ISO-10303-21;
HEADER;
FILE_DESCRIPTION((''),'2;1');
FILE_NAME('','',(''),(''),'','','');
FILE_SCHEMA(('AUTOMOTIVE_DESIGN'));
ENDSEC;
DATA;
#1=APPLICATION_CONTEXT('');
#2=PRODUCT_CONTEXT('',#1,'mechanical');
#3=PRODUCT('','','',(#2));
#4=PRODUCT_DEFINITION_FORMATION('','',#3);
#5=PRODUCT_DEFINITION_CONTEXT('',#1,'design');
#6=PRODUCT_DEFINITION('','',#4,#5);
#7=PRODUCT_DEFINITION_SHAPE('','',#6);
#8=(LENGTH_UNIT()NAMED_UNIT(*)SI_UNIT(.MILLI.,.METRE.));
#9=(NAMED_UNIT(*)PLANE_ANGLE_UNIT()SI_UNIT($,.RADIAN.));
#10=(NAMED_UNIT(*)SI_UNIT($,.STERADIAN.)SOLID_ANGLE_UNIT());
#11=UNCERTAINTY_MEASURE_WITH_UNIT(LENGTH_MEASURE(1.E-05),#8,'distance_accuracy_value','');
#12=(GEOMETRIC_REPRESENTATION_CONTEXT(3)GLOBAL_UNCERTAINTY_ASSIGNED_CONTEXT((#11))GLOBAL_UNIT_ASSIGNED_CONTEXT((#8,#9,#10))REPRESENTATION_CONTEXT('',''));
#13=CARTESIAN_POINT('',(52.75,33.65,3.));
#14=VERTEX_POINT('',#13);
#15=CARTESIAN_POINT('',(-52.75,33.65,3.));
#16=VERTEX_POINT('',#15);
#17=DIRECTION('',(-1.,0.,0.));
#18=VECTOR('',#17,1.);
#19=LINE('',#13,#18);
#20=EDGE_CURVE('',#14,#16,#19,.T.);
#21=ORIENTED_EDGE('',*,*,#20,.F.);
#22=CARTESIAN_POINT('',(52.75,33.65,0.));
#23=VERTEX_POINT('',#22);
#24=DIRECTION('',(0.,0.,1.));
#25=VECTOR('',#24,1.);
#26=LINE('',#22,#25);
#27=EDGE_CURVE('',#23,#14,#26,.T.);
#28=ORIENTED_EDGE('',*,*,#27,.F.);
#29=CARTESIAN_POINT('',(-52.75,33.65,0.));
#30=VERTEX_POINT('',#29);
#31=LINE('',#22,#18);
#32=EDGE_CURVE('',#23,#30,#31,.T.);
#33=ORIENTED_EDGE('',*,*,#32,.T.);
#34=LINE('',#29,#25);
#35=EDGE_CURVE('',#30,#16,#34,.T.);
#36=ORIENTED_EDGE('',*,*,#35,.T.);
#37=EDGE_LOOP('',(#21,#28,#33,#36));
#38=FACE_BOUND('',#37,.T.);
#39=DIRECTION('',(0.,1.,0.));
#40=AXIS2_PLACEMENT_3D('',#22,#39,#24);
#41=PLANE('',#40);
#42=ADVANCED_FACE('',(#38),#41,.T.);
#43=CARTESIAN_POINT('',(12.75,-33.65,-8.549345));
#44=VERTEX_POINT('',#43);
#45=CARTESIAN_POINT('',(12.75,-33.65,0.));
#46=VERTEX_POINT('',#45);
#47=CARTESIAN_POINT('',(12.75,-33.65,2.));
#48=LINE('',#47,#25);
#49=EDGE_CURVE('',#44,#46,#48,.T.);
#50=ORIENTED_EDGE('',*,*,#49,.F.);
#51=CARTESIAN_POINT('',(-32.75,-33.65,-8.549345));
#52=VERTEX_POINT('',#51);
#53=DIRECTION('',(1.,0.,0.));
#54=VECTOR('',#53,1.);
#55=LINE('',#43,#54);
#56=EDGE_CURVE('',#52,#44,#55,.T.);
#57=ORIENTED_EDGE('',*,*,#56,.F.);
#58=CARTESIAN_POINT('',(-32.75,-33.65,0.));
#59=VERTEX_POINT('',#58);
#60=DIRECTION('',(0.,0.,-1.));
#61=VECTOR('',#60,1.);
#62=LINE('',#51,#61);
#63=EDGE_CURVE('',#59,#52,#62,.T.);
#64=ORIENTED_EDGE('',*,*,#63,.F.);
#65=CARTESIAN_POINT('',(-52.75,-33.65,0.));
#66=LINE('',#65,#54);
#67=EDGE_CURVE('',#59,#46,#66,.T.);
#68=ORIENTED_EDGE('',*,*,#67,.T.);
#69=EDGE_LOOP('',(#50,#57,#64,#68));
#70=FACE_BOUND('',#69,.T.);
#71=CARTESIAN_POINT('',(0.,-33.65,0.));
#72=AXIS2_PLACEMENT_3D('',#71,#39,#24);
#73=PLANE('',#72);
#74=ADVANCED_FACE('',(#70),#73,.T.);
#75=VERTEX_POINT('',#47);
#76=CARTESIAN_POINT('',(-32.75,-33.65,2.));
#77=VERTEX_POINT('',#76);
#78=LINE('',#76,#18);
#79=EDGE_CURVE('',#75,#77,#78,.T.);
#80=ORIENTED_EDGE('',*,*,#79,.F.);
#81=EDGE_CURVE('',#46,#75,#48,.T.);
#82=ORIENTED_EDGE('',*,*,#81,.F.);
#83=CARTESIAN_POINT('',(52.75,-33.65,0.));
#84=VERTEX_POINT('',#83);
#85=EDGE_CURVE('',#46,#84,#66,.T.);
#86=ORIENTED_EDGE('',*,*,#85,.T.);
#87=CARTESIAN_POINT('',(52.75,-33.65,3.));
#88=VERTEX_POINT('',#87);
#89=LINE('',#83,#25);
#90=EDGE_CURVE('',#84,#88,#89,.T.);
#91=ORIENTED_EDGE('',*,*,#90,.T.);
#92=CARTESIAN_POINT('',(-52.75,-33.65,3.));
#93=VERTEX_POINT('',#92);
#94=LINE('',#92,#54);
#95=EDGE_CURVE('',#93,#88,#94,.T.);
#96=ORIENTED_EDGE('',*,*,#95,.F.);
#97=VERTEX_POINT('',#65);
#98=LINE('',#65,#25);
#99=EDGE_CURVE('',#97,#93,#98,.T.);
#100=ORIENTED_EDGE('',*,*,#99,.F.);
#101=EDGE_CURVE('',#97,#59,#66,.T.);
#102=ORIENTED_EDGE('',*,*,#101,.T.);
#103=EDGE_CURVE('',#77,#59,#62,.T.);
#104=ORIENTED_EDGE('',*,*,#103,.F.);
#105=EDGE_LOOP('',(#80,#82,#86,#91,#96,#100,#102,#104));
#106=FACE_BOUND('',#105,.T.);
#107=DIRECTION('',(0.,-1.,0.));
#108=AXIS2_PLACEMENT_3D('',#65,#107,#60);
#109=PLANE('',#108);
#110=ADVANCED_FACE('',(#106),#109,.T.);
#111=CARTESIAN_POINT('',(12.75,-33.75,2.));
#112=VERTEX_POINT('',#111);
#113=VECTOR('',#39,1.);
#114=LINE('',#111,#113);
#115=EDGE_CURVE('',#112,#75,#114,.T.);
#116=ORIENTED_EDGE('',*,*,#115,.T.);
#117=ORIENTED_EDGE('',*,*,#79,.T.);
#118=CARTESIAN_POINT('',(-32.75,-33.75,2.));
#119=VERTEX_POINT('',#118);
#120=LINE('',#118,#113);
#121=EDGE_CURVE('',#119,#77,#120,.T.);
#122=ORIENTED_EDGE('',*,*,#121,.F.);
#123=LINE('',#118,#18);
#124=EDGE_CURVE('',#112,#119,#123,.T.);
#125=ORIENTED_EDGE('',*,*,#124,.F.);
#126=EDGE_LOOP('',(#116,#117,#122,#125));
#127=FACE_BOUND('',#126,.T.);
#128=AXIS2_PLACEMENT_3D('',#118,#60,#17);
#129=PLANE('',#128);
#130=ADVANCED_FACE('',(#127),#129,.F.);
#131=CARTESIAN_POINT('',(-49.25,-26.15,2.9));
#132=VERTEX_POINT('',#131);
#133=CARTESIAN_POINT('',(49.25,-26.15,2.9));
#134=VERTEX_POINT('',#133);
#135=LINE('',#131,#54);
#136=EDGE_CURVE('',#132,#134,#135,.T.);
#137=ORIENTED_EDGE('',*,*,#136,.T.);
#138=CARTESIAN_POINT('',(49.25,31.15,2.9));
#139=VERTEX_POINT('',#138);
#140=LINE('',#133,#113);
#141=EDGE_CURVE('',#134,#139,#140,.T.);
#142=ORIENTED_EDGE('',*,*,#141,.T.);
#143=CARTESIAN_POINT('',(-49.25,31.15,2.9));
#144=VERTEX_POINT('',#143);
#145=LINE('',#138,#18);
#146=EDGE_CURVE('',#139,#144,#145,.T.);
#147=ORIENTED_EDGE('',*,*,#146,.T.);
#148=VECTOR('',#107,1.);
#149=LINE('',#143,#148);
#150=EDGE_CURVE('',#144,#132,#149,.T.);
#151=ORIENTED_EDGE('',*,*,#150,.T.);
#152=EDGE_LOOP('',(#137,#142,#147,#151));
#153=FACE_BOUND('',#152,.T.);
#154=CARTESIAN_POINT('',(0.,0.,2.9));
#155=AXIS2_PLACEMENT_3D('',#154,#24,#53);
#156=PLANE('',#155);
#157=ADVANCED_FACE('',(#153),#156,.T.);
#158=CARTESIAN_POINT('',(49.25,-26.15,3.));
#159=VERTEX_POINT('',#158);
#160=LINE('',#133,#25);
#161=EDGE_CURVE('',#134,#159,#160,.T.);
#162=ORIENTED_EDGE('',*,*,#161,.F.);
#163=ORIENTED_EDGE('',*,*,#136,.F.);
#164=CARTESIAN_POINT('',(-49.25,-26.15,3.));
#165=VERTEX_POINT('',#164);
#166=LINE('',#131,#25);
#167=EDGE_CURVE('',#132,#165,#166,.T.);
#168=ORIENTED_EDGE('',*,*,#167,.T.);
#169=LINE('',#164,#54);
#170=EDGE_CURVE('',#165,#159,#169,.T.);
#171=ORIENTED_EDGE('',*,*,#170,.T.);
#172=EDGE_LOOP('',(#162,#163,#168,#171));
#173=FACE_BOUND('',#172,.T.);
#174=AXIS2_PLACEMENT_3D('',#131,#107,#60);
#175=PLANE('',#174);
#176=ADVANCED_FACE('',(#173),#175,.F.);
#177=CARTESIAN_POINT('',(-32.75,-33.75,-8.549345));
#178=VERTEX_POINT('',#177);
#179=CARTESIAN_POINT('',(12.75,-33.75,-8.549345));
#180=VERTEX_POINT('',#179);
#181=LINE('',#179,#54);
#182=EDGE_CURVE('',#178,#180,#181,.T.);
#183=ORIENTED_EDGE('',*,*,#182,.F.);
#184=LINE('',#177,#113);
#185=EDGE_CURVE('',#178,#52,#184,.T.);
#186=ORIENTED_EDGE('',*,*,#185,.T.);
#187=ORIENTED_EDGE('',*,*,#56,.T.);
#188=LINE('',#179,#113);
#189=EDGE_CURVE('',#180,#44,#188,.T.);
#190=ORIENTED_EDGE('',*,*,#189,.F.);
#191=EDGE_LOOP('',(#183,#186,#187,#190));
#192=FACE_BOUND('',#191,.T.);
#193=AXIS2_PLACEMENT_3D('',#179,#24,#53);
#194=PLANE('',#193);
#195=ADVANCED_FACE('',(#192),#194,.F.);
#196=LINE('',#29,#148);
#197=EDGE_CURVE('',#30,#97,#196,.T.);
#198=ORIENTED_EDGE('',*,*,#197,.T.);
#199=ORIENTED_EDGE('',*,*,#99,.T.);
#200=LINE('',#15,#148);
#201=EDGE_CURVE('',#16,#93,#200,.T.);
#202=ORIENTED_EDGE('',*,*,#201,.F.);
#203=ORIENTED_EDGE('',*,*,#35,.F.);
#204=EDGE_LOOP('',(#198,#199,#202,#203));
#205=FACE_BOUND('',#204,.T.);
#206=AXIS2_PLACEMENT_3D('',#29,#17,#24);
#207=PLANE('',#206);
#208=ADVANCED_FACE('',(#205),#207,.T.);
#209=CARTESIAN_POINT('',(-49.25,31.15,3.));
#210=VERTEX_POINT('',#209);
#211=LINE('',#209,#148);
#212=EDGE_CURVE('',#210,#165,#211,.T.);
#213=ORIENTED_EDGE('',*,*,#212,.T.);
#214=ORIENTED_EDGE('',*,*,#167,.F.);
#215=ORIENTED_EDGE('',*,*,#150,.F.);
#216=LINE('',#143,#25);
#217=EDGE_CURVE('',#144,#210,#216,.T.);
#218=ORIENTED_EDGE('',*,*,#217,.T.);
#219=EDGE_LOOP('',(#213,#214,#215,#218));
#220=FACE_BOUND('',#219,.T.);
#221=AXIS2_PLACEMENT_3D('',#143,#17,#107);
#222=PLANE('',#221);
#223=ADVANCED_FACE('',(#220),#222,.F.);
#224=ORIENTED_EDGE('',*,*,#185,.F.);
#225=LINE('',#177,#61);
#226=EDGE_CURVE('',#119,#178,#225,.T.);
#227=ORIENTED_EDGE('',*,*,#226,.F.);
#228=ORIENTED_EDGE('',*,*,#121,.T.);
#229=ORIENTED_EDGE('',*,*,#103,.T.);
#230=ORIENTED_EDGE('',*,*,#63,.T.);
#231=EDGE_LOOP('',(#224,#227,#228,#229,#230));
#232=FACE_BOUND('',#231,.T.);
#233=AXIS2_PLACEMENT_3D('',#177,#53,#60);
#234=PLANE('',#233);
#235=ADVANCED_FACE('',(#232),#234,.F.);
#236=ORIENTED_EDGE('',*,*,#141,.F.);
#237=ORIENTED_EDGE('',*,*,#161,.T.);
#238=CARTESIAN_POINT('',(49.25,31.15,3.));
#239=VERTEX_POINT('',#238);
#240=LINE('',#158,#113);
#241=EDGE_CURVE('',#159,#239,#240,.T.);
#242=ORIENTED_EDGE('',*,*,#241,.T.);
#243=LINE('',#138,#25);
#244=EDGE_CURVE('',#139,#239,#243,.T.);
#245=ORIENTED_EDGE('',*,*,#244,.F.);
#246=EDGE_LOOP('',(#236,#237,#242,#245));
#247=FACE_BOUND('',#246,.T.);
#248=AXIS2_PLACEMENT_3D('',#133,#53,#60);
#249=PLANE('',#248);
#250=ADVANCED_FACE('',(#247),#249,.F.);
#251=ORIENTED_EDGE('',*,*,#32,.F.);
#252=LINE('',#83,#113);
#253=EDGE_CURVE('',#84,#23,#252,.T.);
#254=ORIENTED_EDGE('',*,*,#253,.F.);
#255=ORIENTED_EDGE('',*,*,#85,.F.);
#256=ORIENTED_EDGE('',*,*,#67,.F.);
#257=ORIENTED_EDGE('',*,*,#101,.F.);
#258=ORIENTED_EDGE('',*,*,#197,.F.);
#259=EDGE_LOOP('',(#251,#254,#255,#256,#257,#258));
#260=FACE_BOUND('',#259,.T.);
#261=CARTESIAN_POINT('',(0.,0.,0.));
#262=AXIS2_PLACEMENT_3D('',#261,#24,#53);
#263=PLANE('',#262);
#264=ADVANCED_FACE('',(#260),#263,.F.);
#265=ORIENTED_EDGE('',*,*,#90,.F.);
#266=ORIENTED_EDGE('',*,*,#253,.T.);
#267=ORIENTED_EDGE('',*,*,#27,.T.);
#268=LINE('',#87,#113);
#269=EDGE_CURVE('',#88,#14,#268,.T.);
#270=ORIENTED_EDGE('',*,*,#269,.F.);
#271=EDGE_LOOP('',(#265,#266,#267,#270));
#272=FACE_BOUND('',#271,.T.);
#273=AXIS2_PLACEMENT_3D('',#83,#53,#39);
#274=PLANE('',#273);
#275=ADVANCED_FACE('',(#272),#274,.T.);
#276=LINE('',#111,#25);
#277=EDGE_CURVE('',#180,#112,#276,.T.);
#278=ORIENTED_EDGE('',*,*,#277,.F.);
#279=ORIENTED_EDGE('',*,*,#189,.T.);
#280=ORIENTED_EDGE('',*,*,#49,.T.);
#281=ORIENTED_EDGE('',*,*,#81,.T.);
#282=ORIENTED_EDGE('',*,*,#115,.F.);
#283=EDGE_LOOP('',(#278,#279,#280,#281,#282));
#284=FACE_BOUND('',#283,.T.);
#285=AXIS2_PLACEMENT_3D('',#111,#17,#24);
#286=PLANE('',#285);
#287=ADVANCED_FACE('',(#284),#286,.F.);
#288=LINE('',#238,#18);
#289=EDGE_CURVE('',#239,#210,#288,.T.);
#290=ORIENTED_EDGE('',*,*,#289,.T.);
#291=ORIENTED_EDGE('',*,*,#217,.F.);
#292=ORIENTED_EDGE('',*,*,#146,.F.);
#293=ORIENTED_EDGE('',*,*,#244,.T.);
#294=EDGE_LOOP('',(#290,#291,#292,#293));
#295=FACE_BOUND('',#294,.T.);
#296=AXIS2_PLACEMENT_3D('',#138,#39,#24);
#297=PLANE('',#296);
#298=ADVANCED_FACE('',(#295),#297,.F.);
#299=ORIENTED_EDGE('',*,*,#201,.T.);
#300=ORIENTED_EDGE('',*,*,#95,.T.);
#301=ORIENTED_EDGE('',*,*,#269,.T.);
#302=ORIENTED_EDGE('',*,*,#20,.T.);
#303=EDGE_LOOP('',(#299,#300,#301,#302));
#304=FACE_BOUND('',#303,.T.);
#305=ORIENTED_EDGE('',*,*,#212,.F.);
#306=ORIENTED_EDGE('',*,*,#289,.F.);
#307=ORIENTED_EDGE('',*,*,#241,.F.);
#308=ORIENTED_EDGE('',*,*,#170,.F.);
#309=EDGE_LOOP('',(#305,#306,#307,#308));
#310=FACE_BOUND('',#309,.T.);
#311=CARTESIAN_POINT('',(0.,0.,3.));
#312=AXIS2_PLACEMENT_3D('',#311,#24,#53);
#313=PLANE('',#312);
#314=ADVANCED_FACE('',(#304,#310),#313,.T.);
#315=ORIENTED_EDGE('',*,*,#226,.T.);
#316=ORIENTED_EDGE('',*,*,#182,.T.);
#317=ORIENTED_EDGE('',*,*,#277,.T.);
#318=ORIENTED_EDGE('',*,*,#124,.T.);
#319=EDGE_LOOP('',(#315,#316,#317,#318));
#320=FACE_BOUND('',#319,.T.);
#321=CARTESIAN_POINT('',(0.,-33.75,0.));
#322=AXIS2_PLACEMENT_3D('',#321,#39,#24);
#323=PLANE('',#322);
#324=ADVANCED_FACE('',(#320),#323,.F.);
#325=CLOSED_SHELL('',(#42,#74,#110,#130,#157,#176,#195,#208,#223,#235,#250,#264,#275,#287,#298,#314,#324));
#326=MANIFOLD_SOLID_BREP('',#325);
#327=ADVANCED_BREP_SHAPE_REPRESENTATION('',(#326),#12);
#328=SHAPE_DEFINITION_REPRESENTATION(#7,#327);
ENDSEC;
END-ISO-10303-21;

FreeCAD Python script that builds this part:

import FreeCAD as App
import Part
import Sketcher
from FreeCAD import Vector
Q = App.Units.Quantity

doc = App.newDocument("Part")
body = doc.addObject("PartDesign::Body", "Body")

# Sketch on XY plane
sketch1 = body.newObject("Sketcher::SketchObject", "Sketch")
sketch1.AttachmentSupport = (doc.getObject("XY_Plane"), [""])
sketch1.MapMode = "FlatFace"
sketch1.AttachmentOffset = App.Placement(Vector(0, 0, 3), App.Rotation())
sketch1.addGeometry(Part.LineSegment(Vector(-53, 34, 0), Vector(-53, -34, 0)), False)
sketch1.addGeometry(Part.LineSegment(Vector(-53, -34, 0), Vector(53, -34, 0)), False)
sketch1.addGeometry(Part.LineSegment(Vector(53, -34, 0), Vector(53, 34, 0)), False)
sketch1.addGeometry(Part.LineSegment(Vector(53, 34, 0), Vector(-53, 34, 0)), False)
sketch1.addConstraint(Sketcher.Constraint("Coincident", 0, 2, 1, 1))
sketch1.addConstraint(Sketcher.Constraint("Coincident", 1, 2, 2, 1))
sketch1.addConstraint(Sketcher.Constraint("Coincident", 2, 2, 3, 1))
sketch1.addConstraint(Sketcher.Constraint("Coincident", 3, 2, 0, 1))
sketch1.addConstraint(Sketcher.Constraint("Vertical", 0))
sketch1.addConstraint(Sketcher.Constraint("Horizontal", 1))
sketch1.addConstraint(Sketcher.Constraint("Vertical", 2))
sketch1.addConstraint(Sketcher.Constraint("Horizontal", 3))
sketch1.addConstraint(Sketcher.Constraint("Symmetric", 0, 2, 2, 2, -1, 1))
sketch1.addConstraint(Sketcher.Constraint("DistanceX", 1, 1, 1, 2, Q("105.5 mm")))
sketch1.addConstraint(Sketcher.Constraint("DistanceY", 0, 2, 0, 1, Q("67.3 mm")))
pad1 = body.newObject("PartDesign::Pad", "Pad")
pad1.Profile = sketch1
pad1.Length = 3
pad1.Reversed = True

# Sketch on XZ plane
sketch2 = body.newObject("Sketcher::SketchObject", "Sketch001")
sketch2.AttachmentSupport = (doc.getObject("XZ_Plane"), [""])
sketch2.MapMode = "FlatFace"
sketch2.AttachmentOffset = App.Placement(Vector(0, 0, 33.65), App.Rotation())
sketch2.addGeometry(Part.LineSegment(Vector(-33, 2, 0), Vector(-33, -9, 0)), False)
sketch2.addGeometry(Part.LineSegment(Vector(-33, -9, 0), Vector(13, -9, 0)), False)
sketch2.addGeometry(Part.LineSegment(Vector(13, -9, 0), Vector(13, 2, 0)), False)
sketch2.addGeometry(Part.LineSegment(Vector(13, 2, 0), Vector(-33, 2, 0)), False)
sketch2.addConstraint(Sketcher.Constraint("Coincident", 0, 2, 1, 1))
sketch2.addConstraint(Sketcher.Constraint("Coincident", 1, 2, 2, 1))
sketch2.addConstraint(Sketcher.Constraint("Coincident", 2, 2, 3, 1))
sketch2.addConstraint(Sketcher.Constraint("Coincident", 3, 2, 0, 1))
sketch2.addConstraint(Sketcher.Constraint("Vertical", 0))
sketch2.addConstraint(Sketcher.Constraint("Horizontal", 1))
sketch2.addConstraint(Sketcher.Constraint("Vertical", 2))
sketch2.addConstraint(Sketcher.Constraint("Horizontal", 3))
sketch2.addConstraint(Sketcher.Constraint("DistanceX", 1, 1, 1, 2, Q("45.5 mm")))
sketch2.addConstraint(Sketcher.Constraint("DistanceY", -1, 1, 2, 2, Q("2 mm")))
sketch2.addConstraint(Sketcher.Constraint("DistanceX", 0, 2, -1, 1, Q("32.75 mm")))
sketch2.addConstraint(Sketcher.Constraint("DistanceY", 0, 2, 0, 1, Q("10.549345 mm")))
pad2 = body.newObject("PartDesign::Pad", "Pad001")
pad2.Profile = sketch2
pad2.Length = 0.1

# Sketch on XY plane
sketch3 = body.newObject("Sketcher::SketchObject", "Sketch002")
sketch3.AttachmentSupport = (doc.getObject("XY_Plane"), [""])
sketch3.MapMode = "FlatFace"
sketch3.AttachmentOffset = App.Placement(Vector(0, 0, 3), App.Rotation())
sketch3.addGeometry(Part.LineSegment(Vector(-49, 31, 0), Vector(-49, -26, 0)), False)
sketch3.addGeometry(Part.LineSegment(Vector(-49, -26, 0), Vector(49, -26, 0)), False)
sketch3.addGeometry(Part.LineSegment(Vector(49, -26, 0), Vector(49, 31, 0)), False)
sketch3.addGeometry(Part.LineSegment(Vector(49, 31, 0), Vector(-49, 31, 0)), False)
sketch3.addConstraint(Sketcher.Constraint("Coincident", 0, 2, 1, 1))
sketch3.addConstraint(Sketcher.Constraint("Coincident", 1, 2, 2, 1))
sketch3.addConstraint(Sketcher.Constraint("Coincident", 2, 2, 3, 1))
sketch3.addConstraint(Sketcher.Constraint("Coincident", 3, 2, 0, 1))
sketch3.addConstraint(Sketcher.Constraint("Vertical", 0))
sketch3.addConstraint(Sketcher.Constraint("Horizontal", 1))
sketch3.addConstraint(Sketcher.Constraint("Vertical", 2))
sketch3.addConstraint(Sketcher.Constraint("Horizontal", 3))
sketch3.addConstraint(Sketcher.Constraint("DistanceX", 1, 1, 1, 2, Q("98.5 mm")))
sketch3.addConstraint(Sketcher.Constraint("DistanceY", 0, 2, 0, 1, Q("57.3 mm")))
sketch3.addConstraint(Sketcher.Constraint("DistanceX", 0, 2, -1, 1, Q("49.25 mm")))
sketch3.addConstraint(Sketcher.Constraint("DistanceY", 0, 2, -1, 1, Q("26.15 mm")))
pocket1 = body.newObject("PartDesign::Pocket", "Pocket")
pocket1.Profile = sketch3
pocket1.Length = 0.1

doc.recompute()
